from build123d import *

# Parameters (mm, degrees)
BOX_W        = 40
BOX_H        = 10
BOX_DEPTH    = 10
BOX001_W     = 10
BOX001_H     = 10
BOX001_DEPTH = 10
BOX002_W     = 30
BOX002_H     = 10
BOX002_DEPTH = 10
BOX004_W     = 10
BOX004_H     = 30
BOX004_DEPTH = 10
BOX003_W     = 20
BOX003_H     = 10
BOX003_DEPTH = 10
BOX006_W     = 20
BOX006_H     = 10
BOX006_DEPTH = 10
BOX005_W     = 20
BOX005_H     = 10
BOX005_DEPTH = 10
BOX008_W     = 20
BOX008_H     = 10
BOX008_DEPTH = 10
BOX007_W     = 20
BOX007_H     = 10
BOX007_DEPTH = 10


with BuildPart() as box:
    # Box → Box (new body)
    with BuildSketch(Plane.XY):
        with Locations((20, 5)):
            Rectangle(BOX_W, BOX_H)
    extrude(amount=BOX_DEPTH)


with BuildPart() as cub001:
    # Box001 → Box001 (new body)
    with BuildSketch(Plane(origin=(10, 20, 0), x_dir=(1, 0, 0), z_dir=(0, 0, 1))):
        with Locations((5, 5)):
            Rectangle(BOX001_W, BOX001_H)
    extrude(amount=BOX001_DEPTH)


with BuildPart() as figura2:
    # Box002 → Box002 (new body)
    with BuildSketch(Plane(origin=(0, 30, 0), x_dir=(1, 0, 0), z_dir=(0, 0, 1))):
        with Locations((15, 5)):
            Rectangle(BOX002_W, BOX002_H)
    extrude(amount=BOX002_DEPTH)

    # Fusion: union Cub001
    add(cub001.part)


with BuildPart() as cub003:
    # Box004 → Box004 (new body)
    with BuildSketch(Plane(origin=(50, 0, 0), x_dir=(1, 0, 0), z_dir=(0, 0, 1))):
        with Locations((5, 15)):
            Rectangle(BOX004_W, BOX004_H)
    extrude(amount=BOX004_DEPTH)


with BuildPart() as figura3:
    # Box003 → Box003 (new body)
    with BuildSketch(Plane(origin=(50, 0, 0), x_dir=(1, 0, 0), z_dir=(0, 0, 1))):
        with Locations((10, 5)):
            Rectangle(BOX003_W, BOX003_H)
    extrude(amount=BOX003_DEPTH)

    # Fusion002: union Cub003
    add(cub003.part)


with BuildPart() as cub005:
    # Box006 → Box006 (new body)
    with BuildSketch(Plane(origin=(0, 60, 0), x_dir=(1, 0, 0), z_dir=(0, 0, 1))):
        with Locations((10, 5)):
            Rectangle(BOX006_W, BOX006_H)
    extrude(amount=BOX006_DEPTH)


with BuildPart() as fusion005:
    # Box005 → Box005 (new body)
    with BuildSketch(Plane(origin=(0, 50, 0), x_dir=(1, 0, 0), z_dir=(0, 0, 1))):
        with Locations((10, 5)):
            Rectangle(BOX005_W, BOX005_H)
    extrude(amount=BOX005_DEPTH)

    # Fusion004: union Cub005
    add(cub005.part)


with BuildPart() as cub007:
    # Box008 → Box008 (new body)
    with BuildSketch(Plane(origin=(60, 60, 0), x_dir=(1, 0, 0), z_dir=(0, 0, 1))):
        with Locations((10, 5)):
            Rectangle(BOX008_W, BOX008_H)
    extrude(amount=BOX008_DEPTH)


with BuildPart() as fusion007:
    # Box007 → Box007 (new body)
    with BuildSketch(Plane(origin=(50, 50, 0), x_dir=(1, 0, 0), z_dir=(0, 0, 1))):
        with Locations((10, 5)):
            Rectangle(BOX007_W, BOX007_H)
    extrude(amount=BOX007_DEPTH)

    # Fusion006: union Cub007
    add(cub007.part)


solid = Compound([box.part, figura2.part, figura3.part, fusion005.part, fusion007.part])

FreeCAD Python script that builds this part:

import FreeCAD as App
import Part
import Sketcher
from FreeCAD import Vector
Q = App.Units.Quantity


def add_polygon(sketch, points):
    """Adds a closed chain of lines whose ends are joined by coincident constraints."""
    first, n = sketch.GeometryCount, len(points)
    for a, b in zip(points, points[1:] + points[:1]):
        sketch.addGeometry(Part.LineSegment(App.Vector(*a, 0), App.Vector(*b, 0)), False)
    for i in range(n):
        sketch.addConstraint(Sketcher.Constraint("Coincident", first + i, 2, first + (i + 1) % n, 1))

doc = App.newDocument("Part")
body = doc.addObject("PartDesign::Body", "Body")

sketch1 = body.newObject("Sketcher::SketchObject", "Sketch")
sketch1.AttachmentSupport = (doc.getObject("XY_Plane"), [""])
sketch1.MapMode = "FlatFace"
add_polygon(sketch1, [(0, 10), (0, 0), (40, 0), (40, 10)])
sketch1.addConstraint(Sketcher.Constraint("Vertical", 0))
sketch1.addConstraint(Sketcher.Constraint("Horizontal", 1))
sketch1.addConstraint(Sketcher.Constraint("Vertical", 2))
sketch1.addConstraint(Sketcher.Constraint("Horizontal", 3))
sketch1.addConstraint(Sketcher.Constraint("Coincident", 0, 2, -1, 1))
sketch1.addConstraint(Sketcher.Constraint("DistanceX", 1, 1, 1, 2, Q("40 mm")))
sketch1.addConstraint(Sketcher.Constraint("DistanceY", 0, 2, 0, 1, Q("10 mm")))
pad1 = body.newObject("PartDesign::Pad", "Pad")
pad1.Profile = sketch1
pad1.Length = 10
body2 = doc.addObject("PartDesign::Body", "Body001")

sketch2 = body2.newObject("Sketcher::SketchObject", "Sketch001")
sketch2.AttachmentSupport = (doc.getObject("XY_Plane001"), [""])
sketch2.MapMode = "FlatFace"
add_polygon(sketch2, [(10, 30), (10, 20), (20, 20), (20, 30)])
sketch2.addConstraint(Sketcher.Constraint("Vertical", 0))
sketch2.addConstraint(Sketcher.Constraint("Horizontal", 1))
sketch2.addConstraint(Sketcher.Constraint("Vertical", 2))
sketch2.addConstraint(Sketcher.Constraint("Horizontal", 3))
sketch2.addConstraint(Sketcher.Constraint("Equal", 3, 0))
sketch2.addConstraint(Sketcher.Constraint("DistanceX", 1, 1, 1, 2, Q("10 mm")))
sketch2.addConstraint(Sketcher.Constraint("DistanceX", -1, 1, 0, 2, Q("10 mm")))
sketch2.addConstraint(Sketcher.Constraint("DistanceY", -1, 1, 0, 2, Q("20 mm")))
pad2 = body2.newObject("PartDesign::Pad", "Pad001")
pad2.Profile = sketch2
pad2.Length = 10
body3 = doc.addObject("PartDesign::Body", "Body002")

sketch3 = body3.newObject("Sketcher::SketchObject", "Sketch002")
sketch3.AttachmentSupport = (doc.getObject("XY_Plane002"), [""])
sketch3.MapMode = "FlatFace"
add_polygon(sketch3, [(0, 40), (0, 30), (30, 30), (30, 40)])
sketch3.addConstraint(Sketcher.Constraint("Vertical", 0))
sketch3.addConstraint(Sketcher.Constraint("Horizontal", 1))
sketch3.addConstraint(Sketcher.Constraint("Vertical", 2))
sketch3.addConstraint(Sketcher.Constraint("Horizontal", 3))
sketch3.addConstraint(Sketcher.Constraint("PointOnObject", 0, 2, -2))
sketch3.addConstraint(Sketcher.Constraint("DistanceX", 1, 1, 1, 2, Q("30 mm")))
sketch3.addConstraint(Sketcher.Constraint("DistanceY", 0, 2, 0, 1, Q("10 mm")))
sketch3.addConstraint(Sketcher.Constraint("DistanceY", -1, 1, 0, 2, Q("30 mm")))
pad3 = body3.newObject("PartDesign::Pad", "Pad002")
pad3.Profile = sketch3
pad3.Length = 10
doc.recompute()

boolean = body3.newObject("PartDesign::Boolean", "Boolean")
boolean.Type = "Fuse"
boolean.addObjects([body2])
body4 = doc.addObject("PartDesign::Body", "Body003")

sketch4 = body4.newObject("Sketcher::SketchObject", "Sketch003")
sketch4.AttachmentSupport = (doc.getObject("XY_Plane003"), [""])
sketch4.MapMode = "FlatFace"
add_polygon(sketch4, [(50, 30), (50, 0), (60, 0), (60, 30)])
sketch4.addConstraint(Sketcher.Constraint("Vertical", 0))
sketch4.addConstraint(Sketcher.Constraint("Horizontal", 1))
sketch4.addConstraint(Sketcher.Constraint("Vertical", 2))
sketch4.addConstraint(Sketcher.Constraint("Horizontal", 3))
sketch4.addConstraint(Sketcher.Constraint("PointOnObject", 0, 2, -1))
sketch4.addConstraint(Sketcher.Constraint("DistanceX", 1, 1, 1, 2, Q("10 mm")))
sketch4.addConstraint(Sketcher.Constraint("DistanceY", 0, 2, 0, 1, Q("30 mm")))
sketch4.addConstraint(Sketcher.Constraint("DistanceX", -1, 1, 0, 2, Q("50 mm")))
pad4 = body4.newObject("PartDesign::Pad", "Pad003")
pad4.Profile = sketch4
pad4.Length = 10
body5 = doc.addObject("PartDesign::Body", "Body004")

sketch5 = body5.newObject("Sketcher::SketchObject", "Sketch004")
sketch5.AttachmentSupport = (doc.getObject("XY_Plane004"), [""])
sketch5.MapMode = "FlatFace"
add_polygon(sketch5, [(50, 10), (50, 0), (70, 0), (70, 10)])
sketch5.addConstraint(Sketcher.Constraint("Vertical", 0))
sketch5.addConstraint(Sketcher.Constraint("Horizontal", 1))
sketch5.addConstraint(Sketcher.Constraint("Vertical", 2))
sketch5.addConstraint(Sketcher.Constraint("Horizontal", 3))
sketch5.addConstraint(Sketcher.Constraint("PointOnObject", 0, 2, -1))
sketch5.addConstraint(Sketcher.Constraint("DistanceX", 1, 1, 1, 2, Q("20 mm")))
sketch5.addConstraint(Sketcher.Constraint("DistanceY", 0, 2, 0, 1, Q("10 mm")))
sketch5.addConstraint(Sketcher.Constraint("DistanceX", -1, 1, 0, 2, Q("50 mm")))
pad5 = body5.newObject("PartDesign::Pad", "Pad004")
pad5.Profile = sketch5
pad5.Length = 10
doc.recompute()

boolean2 = body5.newObject("PartDesign::Boolean", "Boolean001")
boolean2.Type = "Fuse"
boolean2.addObjects([body4])
body6 = doc.addObject("PartDesign::Body", "Body005")

sketch6 = body6.newObject("Sketcher::SketchObject", "Sketch005")
sketch6.AttachmentSupport = (doc.getObject("XY_Plane005"), [""])
sketch6.MapMode = "FlatFace"
add_polygon(sketch6, [(0, 70), (0, 60), (20, 60), (20, 70)])
sketch6.addConstraint(Sketcher.Constraint("Vertical", 0))
sketch6.addConstraint(Sketcher.Constraint("Horizontal", 1))
sketch6.addConstraint(Sketcher.Constraint("Vertical", 2))
sketch6.addConstraint(Sketcher.Constraint("Horizontal", 3))
sketch6.addConstraint(Sketcher.Constraint("PointOnObject", 0, 2, -2))
sketch6.addConstraint(Sketcher.Constraint("DistanceX", 1, 1, 1, 2, Q("20 mm")))
sketch6.addConstraint(Sketcher.Constraint("DistanceY", 0, 2, 0, 1, Q("10 mm")))
sketch6.addConstraint(Sketcher.Constraint("DistanceY", -1, 1, 0, 2, Q("60 mm")))
pad6 = body6.newObject("PartDesign::Pad", "Pad005")
pad6.Profile = sketch6
pad6.Length = 10
body7 = doc.addObject("PartDesign::Body", "Body006")

sketch7 = body7.newObject("Sketcher::SketchObject", "Sketch006")
sketch7.AttachmentSupport = (doc.getObject("XY_Plane006"), [""])
sketch7.MapMode = "FlatFace"
add_polygon(sketch7, [(0, 60), (0, 50), (20, 50), (20, 60)])
sketch7.addConstraint(Sketcher.Constraint("Vertical", 0))
sketch7.addConstraint(Sketcher.Constraint("Horizontal", 1))
sketch7.addConstraint(Sketcher.Constraint("Vertical", 2))
sketch7.addConstraint(Sketcher.Constraint("Horizontal", 3))
sketch7.addConstraint(Sketcher.Constraint("PointOnObject", 0, 2, -2))
sketch7.addConstraint(Sketcher.Constraint("DistanceX", 1, 1, 1, 2, Q("20 mm")))
sketch7.addConstraint(Sketcher.Constraint("DistanceY", 0, 2, 0, 1, Q("10 mm")))
sketch7.addConstraint(Sketcher.Constraint("DistanceY", -1, 1, 0, 2, Q("50 mm")))
pad7 = body7.newObject("PartDesign::Pad", "Pad006")
pad7.Profile = sketch7
pad7.Length = 10
doc.recompute()

boolean3 = body7.newObject("PartDesign::Boolean", "Boolean002")
boolean3.Type = "Fuse"
boolean3.addObjects([body6])
body8 = doc.addObject("PartDesign::Body", "Body007")

sketch8 = body8.newObject("Sketcher::SketchObject", "Sketch007")
sketch8.AttachmentSupport = (doc.getObject("XY_Plane007"), [""])
sketch8.MapMode = "FlatFace"
add_polygon(sketch8, [(60, 70), (60, 60), (80, 60), (80, 70)])
sketch8.addConstraint(Sketcher.Constraint("Vertical", 0))
sketch8.addConstraint(Sketcher.Constraint("Horizontal", 1))
sketch8.addConstraint(Sketcher.Constraint("Vertical", 2))
sketch8.addConstraint(Sketcher.Constraint("Horizontal", 3))
sketch8.addConstraint(Sketcher.Constraint("DistanceX", 1, 1, 1, 2, Q("20 mm")))
sketch8.addConstraint(Sketcher.Constraint("DistanceY", 0, 2, 0, 1, Q("10 mm")))
sketch8.addConstraint(Sketcher.Constraint("DistanceX", -1, 1, 0, 2, Q("60 mm")))
sketch8.addConstraint(Sketcher.Constraint("DistanceY", -1, 1, 0, 2, Q("60 mm")))
pad8 = body8.newObject("PartDesign::Pad", "Pad007")
pad8.Profile = sketch8
pad8.Length = 10
body9 = doc.addObject("PartDesign::Body", "Body008")

sketch9 = body9.newObject("Sketcher::SketchObject", "Sketch008")
sketch9.AttachmentSupport = (doc.getObject("XY_Plane008"), [""])
sketch9.MapMode = "FlatFace"
add_polygon(sketch9, [(50, 60), (50, 50), (70, 50), (70, 60)])
sketch9.addConstraint(Sketcher.Constraint("Vertical", 0))
sketch9.addConstraint(Sketcher.Constraint("Horizontal", 1))
sketch9.addConstraint(Sketcher.Constraint("Vertical", 2))
sketch9.addConstraint(Sketcher.Constraint("Horizontal", 3))
sketch9.addConstraint(Sketcher.Constraint("DistanceX", 1, 1, 1, 2, Q("20 mm")))
sketch9.addConstraint(Sketcher.Constraint("DistanceY", 0, 2, 0, 1, Q("10 mm")))
sketch9.addConstraint(Sketcher.Constraint("DistanceX", -1, 1, 0, 2, Q("50 mm")))
sketch9.addConstraint(Sketcher.Constraint("DistanceY", -1, 1, 0, 2, Q("50 mm")))
pad9 = body9.newObject("PartDesign::Pad", "Pad008")
pad9.Profile = sketch9
pad9.Length = 10
doc.recompute()

boolean4 = body9.newObject("PartDesign::Boolean", "Boolean003")
boolean4.Type = "Fuse"
boolean4.addObjects([body8])

doc.recompute()
